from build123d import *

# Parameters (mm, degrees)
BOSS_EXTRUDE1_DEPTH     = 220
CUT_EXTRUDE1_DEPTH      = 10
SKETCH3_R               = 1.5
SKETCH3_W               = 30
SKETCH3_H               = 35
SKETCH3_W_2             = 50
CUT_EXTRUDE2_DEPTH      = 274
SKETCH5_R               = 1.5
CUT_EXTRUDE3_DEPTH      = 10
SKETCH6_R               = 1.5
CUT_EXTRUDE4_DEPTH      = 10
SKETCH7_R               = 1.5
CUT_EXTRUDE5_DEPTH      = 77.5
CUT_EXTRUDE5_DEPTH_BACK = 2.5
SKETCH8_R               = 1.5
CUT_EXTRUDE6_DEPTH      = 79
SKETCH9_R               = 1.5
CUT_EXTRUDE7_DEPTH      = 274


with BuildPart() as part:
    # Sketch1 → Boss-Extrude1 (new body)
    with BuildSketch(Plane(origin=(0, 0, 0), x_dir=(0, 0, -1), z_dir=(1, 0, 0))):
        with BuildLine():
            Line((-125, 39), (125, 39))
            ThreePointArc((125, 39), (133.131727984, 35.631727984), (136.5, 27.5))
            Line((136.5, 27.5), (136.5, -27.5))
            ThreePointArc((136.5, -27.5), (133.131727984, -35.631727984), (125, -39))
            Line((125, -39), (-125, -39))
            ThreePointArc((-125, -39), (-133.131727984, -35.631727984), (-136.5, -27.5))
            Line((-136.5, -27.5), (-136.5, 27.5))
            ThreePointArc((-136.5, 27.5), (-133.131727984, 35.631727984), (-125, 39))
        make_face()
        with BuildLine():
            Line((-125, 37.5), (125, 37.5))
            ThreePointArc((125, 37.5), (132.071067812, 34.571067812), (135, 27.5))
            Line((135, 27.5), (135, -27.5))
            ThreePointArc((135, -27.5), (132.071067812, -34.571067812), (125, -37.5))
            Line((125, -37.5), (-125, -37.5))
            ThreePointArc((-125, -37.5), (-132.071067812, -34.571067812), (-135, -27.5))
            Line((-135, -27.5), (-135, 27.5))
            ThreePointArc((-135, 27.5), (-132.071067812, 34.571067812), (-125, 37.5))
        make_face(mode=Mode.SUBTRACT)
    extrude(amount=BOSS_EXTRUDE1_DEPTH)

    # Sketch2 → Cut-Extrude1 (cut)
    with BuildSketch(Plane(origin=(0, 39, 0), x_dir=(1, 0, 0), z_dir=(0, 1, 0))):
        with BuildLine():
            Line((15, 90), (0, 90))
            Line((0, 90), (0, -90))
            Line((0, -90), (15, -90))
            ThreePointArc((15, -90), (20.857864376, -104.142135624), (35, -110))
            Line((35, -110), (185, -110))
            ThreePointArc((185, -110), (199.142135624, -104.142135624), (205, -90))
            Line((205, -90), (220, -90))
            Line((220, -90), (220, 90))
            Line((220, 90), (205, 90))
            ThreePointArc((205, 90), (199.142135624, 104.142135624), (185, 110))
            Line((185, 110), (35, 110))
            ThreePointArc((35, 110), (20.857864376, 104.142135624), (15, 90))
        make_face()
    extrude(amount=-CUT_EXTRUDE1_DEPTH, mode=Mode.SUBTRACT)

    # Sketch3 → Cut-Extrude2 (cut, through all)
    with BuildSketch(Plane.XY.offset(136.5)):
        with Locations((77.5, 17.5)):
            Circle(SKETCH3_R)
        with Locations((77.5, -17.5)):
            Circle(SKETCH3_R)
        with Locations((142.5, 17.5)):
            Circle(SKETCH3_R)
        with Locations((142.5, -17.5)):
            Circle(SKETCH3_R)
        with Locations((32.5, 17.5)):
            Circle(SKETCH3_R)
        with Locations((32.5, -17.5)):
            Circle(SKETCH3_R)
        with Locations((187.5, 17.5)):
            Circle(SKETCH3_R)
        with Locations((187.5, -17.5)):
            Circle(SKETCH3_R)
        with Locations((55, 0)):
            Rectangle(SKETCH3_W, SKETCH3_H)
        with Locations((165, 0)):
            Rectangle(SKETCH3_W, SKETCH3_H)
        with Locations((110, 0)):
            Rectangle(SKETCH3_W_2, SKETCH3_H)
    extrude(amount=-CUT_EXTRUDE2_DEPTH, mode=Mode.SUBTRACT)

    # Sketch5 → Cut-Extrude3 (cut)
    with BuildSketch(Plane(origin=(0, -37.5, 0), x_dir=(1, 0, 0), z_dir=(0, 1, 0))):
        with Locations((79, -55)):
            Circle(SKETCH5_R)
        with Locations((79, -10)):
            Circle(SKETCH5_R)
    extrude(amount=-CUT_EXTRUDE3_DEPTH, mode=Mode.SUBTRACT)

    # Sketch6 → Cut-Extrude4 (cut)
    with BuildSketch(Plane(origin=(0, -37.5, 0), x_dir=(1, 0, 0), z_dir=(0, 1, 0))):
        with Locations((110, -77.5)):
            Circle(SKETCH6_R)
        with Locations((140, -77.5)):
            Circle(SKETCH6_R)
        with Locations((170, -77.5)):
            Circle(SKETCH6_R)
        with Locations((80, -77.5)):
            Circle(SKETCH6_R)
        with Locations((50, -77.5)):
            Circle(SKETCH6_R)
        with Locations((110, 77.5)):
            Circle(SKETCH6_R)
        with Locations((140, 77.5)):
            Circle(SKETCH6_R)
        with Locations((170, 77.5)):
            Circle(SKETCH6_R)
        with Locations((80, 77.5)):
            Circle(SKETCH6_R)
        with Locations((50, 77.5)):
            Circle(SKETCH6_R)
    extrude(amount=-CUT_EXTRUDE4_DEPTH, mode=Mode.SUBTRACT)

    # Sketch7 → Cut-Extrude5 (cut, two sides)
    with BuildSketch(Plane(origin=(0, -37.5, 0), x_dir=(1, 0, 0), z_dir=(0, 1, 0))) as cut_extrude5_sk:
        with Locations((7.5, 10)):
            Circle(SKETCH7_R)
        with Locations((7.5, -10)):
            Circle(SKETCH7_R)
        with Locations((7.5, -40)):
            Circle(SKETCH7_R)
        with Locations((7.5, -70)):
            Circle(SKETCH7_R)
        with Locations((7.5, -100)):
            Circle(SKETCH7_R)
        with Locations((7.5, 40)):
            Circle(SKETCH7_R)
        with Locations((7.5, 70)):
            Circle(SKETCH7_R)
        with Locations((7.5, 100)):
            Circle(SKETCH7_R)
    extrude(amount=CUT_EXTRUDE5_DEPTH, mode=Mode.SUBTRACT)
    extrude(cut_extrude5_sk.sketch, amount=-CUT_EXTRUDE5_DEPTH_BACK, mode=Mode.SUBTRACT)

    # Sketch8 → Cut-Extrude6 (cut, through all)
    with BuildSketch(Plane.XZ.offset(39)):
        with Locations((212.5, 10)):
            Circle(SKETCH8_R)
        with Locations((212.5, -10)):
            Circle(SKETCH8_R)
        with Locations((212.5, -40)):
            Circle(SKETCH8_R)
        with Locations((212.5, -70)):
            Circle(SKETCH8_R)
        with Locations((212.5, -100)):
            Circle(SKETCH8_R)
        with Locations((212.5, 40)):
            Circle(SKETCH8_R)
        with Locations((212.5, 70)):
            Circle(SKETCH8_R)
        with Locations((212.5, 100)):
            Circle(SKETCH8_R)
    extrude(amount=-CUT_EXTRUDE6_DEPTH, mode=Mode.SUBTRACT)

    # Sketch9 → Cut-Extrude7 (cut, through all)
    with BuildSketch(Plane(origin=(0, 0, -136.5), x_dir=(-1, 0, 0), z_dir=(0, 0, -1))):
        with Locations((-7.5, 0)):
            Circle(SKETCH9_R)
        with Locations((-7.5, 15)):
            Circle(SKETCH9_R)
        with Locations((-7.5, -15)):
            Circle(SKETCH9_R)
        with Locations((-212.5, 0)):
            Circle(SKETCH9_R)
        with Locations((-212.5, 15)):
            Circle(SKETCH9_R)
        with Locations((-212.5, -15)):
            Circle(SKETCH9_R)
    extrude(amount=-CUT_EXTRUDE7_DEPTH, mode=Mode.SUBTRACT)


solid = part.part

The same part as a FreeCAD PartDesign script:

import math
import FreeCAD as App
import Part
import Sketcher
from FreeCAD import Vector

doc = App.newDocument("Part")
body = doc.addObject("PartDesign::Body", "Body")

# Sketch on YZ plane
sketch1 = body.newObject("Sketcher::SketchObject", "Sketch")
sketch1.AttachmentSupport = (doc.getObject("YZ_Plane"), [""])
sketch1.MapMode = "FlatFace"
sketch1.addGeometry([
    Part.LineSegment(Vector(39, -125, 0), Vector(39, 125, 0)),  # 0
    Part.ArcOfCircle(Part.Circle(Vector(27.5, 125, 0), Vector(0, 0, 1), 11.5), math.radians(0), math.radians(90)),  # 1
    Part.LineSegment(Vector(27.5, 136.5, 0), Vector(-27.5, 136.5, 0)),  # 2
    Part.ArcOfCircle(Part.Circle(Vector(-27.5, 125, 0), Vector(0, 0, 1), 11.5), math.radians(90), math.radians(180)),  # 3
    Part.LineSegment(Vector(-39, 125, 0), Vector(-39, -125, 0)),  # 4
    Part.ArcOfCircle(Part.Circle(Vector(-27.5, -125, 0), Vector(0, 0, 1), 11.5), math.radians(180), math.radians(270)),  # 5
    Part.LineSegment(Vector(-27.5, -136.5, 0), Vector(27.5, -136.5, 0)),  # 6
    Part.ArcOfCircle(Part.Circle(Vector(27.5, -125, 0), Vector(0, 0, 1), 11.5), math.radians(-90), math.radians(0)),  # 7
    Part.LineSegment(Vector(37.5, 125, 0), Vector(37.5, -125, 0)),  # 8
    Part.ArcOfCircle(Part.Circle(Vector(27.5, -125, 0), Vector(0, 0, 1), 10), math.radians(-90), math.radians(0)),  # 9
    Part.LineSegment(Vector(27.5, -135, 0), Vector(-27.5, -135, 0)),  # 10
    Part.ArcOfCircle(Part.Circle(Vector(-27.5, -125, 0), Vector(0, 0, 1), 10), math.radians(180), math.radians(270)),  # 11
    Part.LineSegment(Vector(-37.5, -125, 0), Vector(-37.5, 125, 0)),  # 12
    Part.ArcOfCircle(Part.Circle(Vector(-27.5, 125, 0), Vector(0, 0, 1), 10), math.radians(90), math.radians(180)),  # 13
    Part.LineSegment(Vector(-27.5, 135, 0), Vector(27.5, 135, 0)),  # 14
    Part.ArcOfCircle(Part.Circle(Vector(27.5, 125, 0), Vector(0, 0, 1), 10), math.radians(0), math.radians(90)),  # 15
], False)
sketch1.addConstraint([
    Sketcher.Constraint("Tangent", 0, 2, 1, 1),
    Sketcher.Constraint("Tangent", 1, 2, 2, 1),
    Sketcher.Constraint("Tangent", 2, 2, 3, 1),
    Sketcher.Constraint("Tangent", 3, 2, 4, 1),
    Sketcher.Constraint("Tangent", 4, 2, 5, 1),
    Sketcher.Constraint("Tangent", 5, 2, 6, 1),
    Sketcher.Constraint("Tangent", 6, 2, 7, 1),
    Sketcher.Constraint("Tangent", 7, 2, 0, 1),
    Sketcher.Constraint("Tangent", 8, 2, 9, 2),
    Sketcher.Constraint("Tangent", 9, 1, 10, 1),
    Sketcher.Constraint("Tangent", 10, 2, 11, 2),
    Sketcher.Constraint("Tangent", 11, 1, 12, 1),
    Sketcher.Constraint("Tangent", 12, 2, 13, 2),
    Sketcher.Constraint("Tangent", 13, 1, 14, 1),
    Sketcher.Constraint("Tangent", 14, 2, 15, 2),
    Sketcher.Constraint("Tangent", 15, 1, 8, 1),
    Sketcher.Constraint("Vertical", 0),
    Sketcher.Constraint("Horizontal", 2),
    Sketcher.Constraint("Vertical", 4),
    Sketcher.Constraint("Horizontal", 6),
    Sketcher.Constraint("Vertical", 8),
    Sketcher.Constraint("Horizontal", 10),
    Sketcher.Constraint("Vertical", 12),
    Sketcher.Constraint("Horizontal", 14),
    Sketcher.Constraint("Coincident", 9, 3, 7, 3),
    Sketcher.Constraint("Coincident", 11, 3, 5, 3),
    Sketcher.Constraint("Coincident", 13, 3, 3, 3),
    Sketcher.Constraint("Equal", 1, 3),
    Sketcher.Constraint("Equal", 3, 5),
    Sketcher.Constraint("Equal", 5, 7),
    Sketcher.Constraint("Equal", 13, 15),
    Sketcher.Constraint("Symmetric", 1, 3, 5, 3, -1, 1),
    Sketcher.Constraint("Radius", 9, 10.0),
    Sketcher.Constraint("Radius", 1, 11.5),
    Sketcher.Constraint("DistanceX", 2, 2, 2, 1, 55.0),
    Sketcher.Constraint("DistanceY", 0, 1, 0, 2, 250.0),
])
pad1 = body.newObject("PartDesign::Pad", "Pad")
pad1.Profile = sketch1
pad1.Length = 220

# Sketch on XZ plane
sketch2 = body.newObject("Sketcher::SketchObject", "Sketch001")
sketch2.AttachmentSupport = (doc.getObject("XZ_Plane"), [""])
sketch2.MapMode = "FlatFace"
sketch2.AttachmentOffset = App.Placement(Vector(0, 0, -39), App.Rotation())
sketch2.addGeometry([
    Part.LineSegment(Vector(15, -90, 0), Vector(0, -90, 0)),  # 0
    Part.LineSegment(Vector(0, -90, 0), Vector(0, 90, 0)),  # 1
    Part.LineSegment(Vector(0, 90, 0), Vector(15, 90, 0)),  # 2
    Part.ArcOfCircle(Part.Circle(Vector(35, 90, 0), Vector(0, 0, 1), 20), math.radians(90), math.radians(180)),  # 3
    Part.LineSegment(Vector(35, 110, 0), Vector(185, 110, 0)),  # 4
    Part.ArcOfCircle(Part.Circle(Vector(185, 90, 0), Vector(0, 0, 1), 20), math.radians(0), math.radians(90)),  # 5
    Part.LineSegment(Vector(205, 90, 0), Vector(220, 90, 0)),  # 6
    Part.LineSegment(Vector(220, 90, 0), Vector(220, -90, 0)),  # 7
    Part.LineSegment(Vector(220, -90, 0), Vector(205, -90, 0)),  # 8
    Part.ArcOfCircle(Part.Circle(Vector(185, -90, 0), Vector(0, 0, 1), 20), math.radians(-90), math.radians(0)),  # 9
    Part.LineSegment(Vector(185, -110, 0), Vector(35, -110, 0)),  # 10
    Part.ArcOfCircle(Part.Circle(Vector(35, -90, 0), Vector(0, 0, 1), 20), math.radians(180), math.radians(270)),  # 11
], False)
sketch2.addConstraint([
    Sketcher.Constraint("Coincident", 0, 2, 1, 1),
    Sketcher.Constraint("Coincident", 1, 2, 2, 1),
    Sketcher.Constraint("Coincident", 2, 2, 3, 2),
    Sketcher.Constraint("Tangent", 3, 1, 4, 1),
    Sketcher.Constraint("Tangent", 4, 2, 5, 2),
    Sketcher.Constraint("Coincident", 5, 1, 6, 1),
    Sketcher.Constraint("Coincident", 6, 2, 7, 1),
    Sketcher.Constraint("Coincident", 7, 2, 8, 1),
    Sketcher.Constraint("Coincident", 8, 2, 9, 2),
    Sketcher.Constraint("Tangent", 9, 1, 10, 1),
    Sketcher.Constraint("Tangent", 10, 2, 11, 2),
    Sketcher.Constraint("Coincident", 11, 1, 0, 1),
    Sketcher.Constraint("Horizontal", 0),
    Sketcher.Constraint("Vertical", 1),
    Sketcher.Constraint("Horizontal", 2),
    Sketcher.Constraint("Horizontal", 4),
    Sketcher.Constraint("Horizontal", 6),
    Sketcher.Constraint("Vertical", 7),
    Sketcher.Constraint("Horizontal", 8),
    Sketcher.Constraint("Horizontal", 10),
    Sketcher.Constraint("Equal", 3, 5),
    Sketcher.Constraint("Equal", 5, 9),
    Sketcher.Constraint("Equal", 9, 11),
    Sketcher.Constraint("Symmetric", 0, 2, 1, 2, -1, 1),
    Sketcher.Constraint("Symmetric", 5, 3, 9, 3, -1),
    Sketcher.Constraint("Horizontal", 11, 3, 0, 2),
    Sketcher.Constraint("Horizontal", 2, 2, 5, 1),
    Sketcher.Constraint("Horizontal", 0, 2, 7, 2),
    Sketcher.Constraint("Vertical", 3, 3, 11, 3),
    Sketcher.Constraint("Equal", 2, 6),
    Sketcher.Constraint("Radius", 3, 20.0),
    Sketcher.Constraint("DistanceX", 0, 2, 0, 1, 15.0),
    Sketcher.Constraint("DistanceX", 4, 1, 4, 2, 150.0),
    Sketcher.Constraint("DistanceY", 1, 1, 1, 2, 180.0),
])
pocket1 = body.newObject("PartDesign::Pocket", "Pocket")
pocket1.Profile = sketch2
pocket1.Length = 10
pocket1.Reversed = True

# Sketch on XY plane
sketch3 = body.newObject("Sketcher::SketchObject", "Sketch002")
sketch3.AttachmentSupport = (doc.getObject("XY_Plane"), [""])
sketch3.MapMode = "FlatFace"
sketch3.AttachmentOffset = App.Placement(Vector(0, 0, 136.5), App.Rotation())
sketch3.addGeometry([
    Part.Circle(Vector(77.5, 17.5, 0), Vector(0, 0, 1), 1.5),  # 0
    Part.Circle(Vector(77.5, -17.5, 0), Vector(0, 0, 1), 1.5),  # 1
    Part.Circle(Vector(142.5, 17.5, 0), Vector(0, 0, 1), 1.5),  # 2
    Part.Circle(Vector(142.5, -17.5, 0), Vector(0, 0, 1), 1.5),  # 3
    Part.Circle(Vector(32.5, 17.5, 0), Vector(0, 0, 1), 1.5),  # 4
    Part.Circle(Vector(32.5, -17.5, 0), Vector(0, 0, 1), 1.5),  # 5
    Part.Circle(Vector(187.5, 17.5, 0), Vector(0, 0, 1), 1.5),  # 6
    Part.Circle(Vector(187.5, -17.5, 0), Vector(0, 0, 1), 1.5),  # 7
    Part.LineSegment(Vector(40, 17.5, 0), Vector(40, -17.5, 0)),  # 8
    Part.LineSegment(Vector(40, -17.5, 0), Vector(70, -17.5, 0)),  # 9
    Part.LineSegment(Vector(70, -17.5, 0), Vector(70, 17.5, 0)),  # 10
    Part.LineSegment(Vector(70, 17.5, 0), Vector(40, 17.5, 0)),  # 11
    Part.LineSegment(Vector(150, 17.5, 0), Vector(150, -17.5, 0)),  # 12
    Part.LineSegment(Vector(150, -17.5, 0), Vector(180, -17.5, 0)),  # 13
    Part.LineSegment(Vector(180, -17.5, 0), Vector(180, 17.5, 0)),  # 14
    Part.LineSegment(Vector(180, 17.5, 0), Vector(150, 17.5, 0)),  # 15
    Part.LineSegment(Vector(85, 17.5, 0), Vector(85, -17.5, 0)),  # 16
    Part.LineSegment(Vector(85, -17.5, 0), Vector(135, -17.5, 0)),  # 17
    Part.LineSegment(Vector(135, -17.5, 0), Vector(135, 17.5, 0)),  # 18
    Part.LineSegment(Vector(135, 17.5, 0), Vector(85, 17.5, 0)),  # 19
], False)
sketch3.addConstraint([
    Sketcher.Constraint("Coincident", 8, 2, 9, 1),
    Sketcher.Constraint("Coincident", 9, 2, 10, 1),
    Sketcher.Constraint("Coincident", 10, 2, 11, 1),
    Sketcher.Constraint("Coincident", 11, 2, 8, 1),
    Sketcher.Constraint("Coincident", 12, 2, 13, 1),
    Sketcher.Constraint("Coincident", 13, 2, 14, 1),
    Sketcher.Constraint("Coincident", 14, 2, 15, 1),
    Sketcher.Constraint("Coincident", 15, 2, 12, 1),
    Sketcher.Constraint("Coincident", 16, 2, 17, 1),
    Sketcher.Constraint("Coincident", 17, 2, 18, 1),
    Sketcher.Constraint("Coincident", 18, 2, 19, 1),
    Sketcher.Constraint("Coincident", 19, 2, 16, 1),
    Sketcher.Constraint("Vertical", 8),
    Sketcher.Constraint("Horizontal", 9),
    Sketcher.Constraint("Vertical", 10),
    Sketcher.Constraint("Horizontal", 11),
    Sketcher.Constraint("Vertical", 12),
    Sketcher.Constraint("Horizontal", 13),
    Sketcher.Constraint("Vertical", 14),
    Sketcher.Constraint("Horizontal", 15),
    Sketcher.Constraint("Vertical", 16),
    Sketcher.Constraint("Horizontal", 17),
    Sketcher.Constraint("Vertical", 18),
    Sketcher.Constraint("Horizontal", 19),
    Sketcher.Constraint("Equal", 0, 1),
    Sketcher.Constraint("Equal", 1, 2),
    Sketcher.Constraint("Equal", 2, 3),
    Sketcher.Constraint("Equal", 3, 4),
    Sketcher.Constraint("Equal", 4, 5),
    Sketcher.Constraint("Equal", 5, 6),
    Sketcher.Constraint("Equal", 6, 7),
    Sketcher.Constraint("Symmetric", 0, 3, 1, 3, -1),
    Sketcher.Constraint("Symmetric", 2, 3, 3, 3, -1),
    Sketcher.Constraint("Symmetric", 4, 3, 5, 3, -1),
    Sketcher.Constraint("Symmetric", 6, 3, 7, 3, -1),
    Sketcher.Constraint("Horizontal", 0, 3, 2, 3),
    Sketcher.Constraint("Horizontal", 2, 3, 4, 3),
    Sketcher.Constraint("Horizontal", 4, 3, 6, 3),
    Sketcher.Constraint("Horizontal", 7, 3, 8, 2),
    Sketcher.Constraint("Horizontal", 6, 3, 10, 2),
    Sketcher.Constraint("Horizontal", 9, 2, 12, 2),
    Sketcher.Constraint("Horizontal", 11, 2, 14, 2),
    Sketcher.Constraint("Horizontal", 13, 2, 16, 2),
    Sketcher.Constraint("Horizontal", 15, 2, 18, 2),
    Sketcher.Constraint("Equal", 11, 13),
    Sketcher.Constraint("Diameter", 0, 3.0),
    Sketcher.Constraint("DistanceX", 9, 1, 9, 2, 30.0),
    Sketcher.Constraint("DistanceX", 17, 1, 17, 2, 50.0),
    Sketcher.Constraint("DistanceY", 8, 2, 8, 1, 35.0),
    Sketcher.Constraint("DistanceX", -1, 1, 8, 2, 40.0),
    Sketcher.Constraint("DistanceX", -1, 1, 12, 2, 150.0),
    Sketcher.Constraint("DistanceX", -1, 1, 16, 2, 85.0),
    Sketcher.Constraint("DistanceX", 0, 3, 2, 3, 65.0),
    Sketcher.Constraint("DistanceX", 4, 3, 0, 3, 45.0),
    Sketcher.Constraint("DistanceX", 2, 3, 6, 3, 45.0),
    Sketcher.Constraint("DistanceX", -1, 1, 0, 3, 77.5),
])
pocket2 = body.newObject("PartDesign::Pocket", "Pocket001")
pocket2.Profile = sketch3
pocket2.Type = "ThroughAll"

# Sketch on XZ plane
sketch4 = body.newObject("Sketcher::SketchObject", "Sketch003")
sketch4.AttachmentSupport = (doc.getObject("XZ_Plane"), [""])
sketch4.MapMode = "FlatFace"
sketch4.AttachmentOffset = App.Placement(Vector(0, 0, 37.5), App.Rotation())
sketch4.addGeometry([
    Part.Circle(Vector(79, 55, 0), Vector(0, 0, 1), 1.5),
    Part.Circle(Vector(79, 10, 0), Vector(0, 0, 1), 1.5),
], False)
sketch4.addConstraint([
    Sketcher.Constraint("Equal", 0, 1),
    Sketcher.Constraint("Vertical", 0, 3, 1, 3),
    Sketcher.Constraint("Diameter", 0, 3.0),
    Sketcher.Constraint("DistanceX", -1, 1, 0, 3, 79.0),
    Sketcher.Constraint("DistanceY", -1, 1, 0, 3, 55.0),
    Sketcher.Constraint("DistanceY", -1, 1, 1, 3, 10.0),
])
pocket3 = body.newObject("PartDesign::Pocket", "Pocket002")
pocket3.Profile = sketch4
pocket3.Length = 10
pocket3.Reversed = True

# Sketch on XZ plane
sketch5 = body.newObject("Sketcher::SketchObject", "Sketch004")
sketch5.AttachmentSupport = (doc.getObject("XZ_Plane"), [""])
sketch5.MapMode = "FlatFace"
sketch5.AttachmentOffset = App.Placement(Vector(0, 0, 37.5), App.Rotation())
sketch5.addGeometry([
    Part.Circle(Vector(110, 77.5, 0), Vector(0, 0, 1), 1.5),  # 0
    Part.Circle(Vector(140, 77.5, 0), Vector(0, 0, 1), 1.5),  # 1
    Part.Circle(Vector(170, 77.5, 0), Vector(0, 0, 1), 1.5),  # 2
    Part.Circle(Vector(80, 77.5, 0), Vector(0, 0, 1), 1.5),  # 3
    Part.Circle(Vector(50, 77.5, 0), Vector(0, 0, 1), 1.5),  # 4
    Part.Circle(Vector(110, -77.5, 0), Vector(0, 0, 1), 1.5),  # 5
    Part.Circle(Vector(140, -77.5, 0), Vector(0, 0, 1), 1.5),  # 6
    Part.Circle(Vector(170, -77.5, 0), Vector(0, 0, 1), 1.5),  # 7
    Part.Circle(Vector(80, -77.5, 0), Vector(0, 0, 1), 1.5),  # 8
    Part.Circle(Vector(50, -77.5, 0), Vector(0, 0, 1), 1.5),  # 9
], False)
sketch5.addConstraint([
    Sketcher.Constraint("Equal", 0, 1),
    Sketcher.Constraint("Equal", 1, 2),
    Sketcher.Constraint("Equal", 2, 3),
    Sketcher.Constraint("Equal", 3, 4),
    Sketcher.Constraint("Equal", 4, 5),
    Sketcher.Constraint("Equal", 5, 6),
    Sketcher.Constraint("Equal", 6, 7),
    Sketcher.Constraint("Equal", 7, 8),
    Sketcher.Constraint("Equal", 8, 9),
    Sketcher.Constraint("Symmetric", 0, 3, 5, 3, -1),
    Sketcher.Constraint("Symmetric", 1, 3, 6, 3, -1),
    Sketcher.Constraint("Symmetric", 2, 3, 7, 3, -1),
    Sketcher.Constraint("Symmetric", 3, 3, 8, 3, -1),
    Sketcher.Constraint("Symmetric", 4, 3, 9, 3, -1),
    Sketcher.Constraint("Horizontal", 0, 3, 1, 3),
    Sketcher.Constraint("Horizontal", 1, 3, 2, 3),
    Sketcher.Constraint("Horizontal", 2, 3, 3, 3),
    Sketcher.Constraint("Horizontal", 3, 3, 4, 3),
    Sketcher.Constraint("Diameter", 0, 3.0),
    Sketcher.Constraint("DistanceX", -1, 1, 0, 3, 110.0),
    Sketcher.Constraint("DistanceX", -1, 1, 1, 3, 140.0),
    Sketcher.Constraint("DistanceX", -1, 1, 2, 3, 170.0),
    Sketcher.Constraint("DistanceX", -1, 1, 3, 3, 80.0),
    Sketcher.Constraint("DistanceX", -1, 1, 4, 3, 50.0),
    Sketcher.Constraint("DistanceY", 5, 3, 0, 3, 155.0),
])
pocket4 = body.newObject("PartDesign::Pocket", "Pocket003")
pocket4.Profile = sketch5
pocket4.Length = 10
pocket4.Reversed = True

# Sketch on XZ plane
sketch6 = body.newObject("Sketcher::SketchObject", "Sketch005")
sketch6.AttachmentSupport = (doc.getObject("XZ_Plane"), [""])
sketch6.MapMode = "FlatFace"
sketch6.AttachmentOffset = App.Placement(Vector(0, 0, 37.5), App.Rotation())
sketch6.addGeometry([
    Part.Circle(Vector(7.5, -10, 0), Vector(0, 0, 1), 1.5),  # 0
    Part.Circle(Vector(7.5, 10, 0), Vector(0, 0, 1), 1.5),  # 1
    Part.Circle(Vector(7.5, 40, 0), Vector(0, 0, 1), 1.5),  # 2
    Part.Circle(Vector(7.5, 70, 0), Vector(0, 0, 1), 1.5),  # 3
    Part.Circle(Vector(7.5, 100, 0), Vector(0, 0, 1), 1.5),  # 4
    Part.Circle(Vector(7.5, -40, 0), Vector(0, 0, 1), 1.5),  # 5
    Part.Circle(Vector(7.5, -70, 0), Vector(0, 0, 1), 1.5),  # 6
    Part.Circle(Vector(7.5, -100, 0), Vector(0, 0, 1), 1.5),  # 7
], False)
sketch6.addConstraint([
    Sketcher.Constraint("Equal", 0, 1),
    Sketcher.Constraint("Equal", 1, 2),
    Sketcher.Constraint("Equal", 2, 3),
    Sketcher.Constraint("Equal", 3, 4),
    Sketcher.Constraint("Equal", 4, 5),
    Sketcher.Constraint("Equal", 5, 6),
    Sketcher.Constraint("Equal", 6, 7),
    Sketcher.Constraint("Symmetric", 0, 3, 1, 3, -1),
    Sketcher.Constraint("Symmetric", 2, 3, 5, 3, -1),
    Sketcher.Constraint("Symmetric", 3, 3, 6, 3, -1),
    Sketcher.Constraint("Symmetric", 4, 3, 7, 3, -1),
    Sketcher.Constraint("Vertical", 1, 3, 2, 3),
    Sketcher.Constraint("Vertical", 2, 3, 3, 3),
    Sketcher.Constraint("Vertical", 3, 3, 4, 3),
    Sketcher.Constraint("Diameter", 0, 3.0),
    Sketcher.Constraint("DistanceY", 0, 3, -1, 1, 10.0),
    Sketcher.Constraint("DistanceY", -1, 1, 2, 3, 40.0),
    Sketcher.Constraint("DistanceY", -1, 1, 3, 3, 70.0),
    Sketcher.Constraint("DistanceY", -1, 1, 4, 3, 100.0),
    Sketcher.Constraint("DistanceX", -1, 1, 0, 3, 7.5),
])
pocket5 = body.newObject("PartDesign::Pocket", "Pocket004")
pocket5.Profile = sketch6
pocket5.Type = "ThroughAll"
pocket5.Midplane = True

# Sketch on XZ plane
sketch7 = body.newObject("Sketcher::SketchObject", "Sketch006")
sketch7.AttachmentSupport = (doc.getObject("XZ_Plane"), [""])
sketch7.MapMode = "FlatFace"
sketch7.AttachmentOffset = App.Placement(Vector(0, 0, 39), App.Rotation())
sketch7.addGeometry([
    Part.Circle(Vector(212.5, 10, 0), Vector(0, 0, 1), 1.5),  # 0
    Part.Circle(Vector(212.5, -10, 0), Vector(0, 0, 1), 1.5),  # 1
    Part.Circle(Vector(212.5, -40, 0), Vector(0, 0, 1), 1.5),  # 2
    Part.Circle(Vector(212.5, -70, 0), Vector(0, 0, 1), 1.5),  # 3
    Part.Circle(Vector(212.5, -100, 0), Vector(0, 0, 1), 1.5),  # 4
    Part.Circle(Vector(212.5, 40, 0), Vector(0, 0, 1), 1.5),  # 5
    Part.Circle(Vector(212.5, 70, 0), Vector(0, 0, 1), 1.5),  # 6
    Part.Circle(Vector(212.5, 100, 0), Vector(0, 0, 1), 1.5),  # 7
], False)
sketch7.addConstraint([
    Sketcher.Constraint("Equal", 0, 1),
    Sketcher.Constraint("Equal", 1, 2),
    Sketcher.Constraint("Equal", 2, 3),
    Sketcher.Constraint("Equal", 3, 4),
    Sketcher.Constraint("Equal", 4, 5),
    Sketcher.Constraint("Equal", 5, 6),
    Sketcher.Constraint("Equal", 6, 7),
    Sketcher.Constraint("Symmetric", 0, 3, 1, 3, -1),
    Sketcher.Constraint("Symmetric", 2, 3, 5, 3, -1),
    Sketcher.Constraint("Symmetric", 3, 3, 6, 3, -1),
    Sketcher.Constraint("Symmetric", 4, 3, 7, 3, -1),
    Sketcher.Constraint("Vertical", 1, 3, 2, 3),
    Sketcher.Constraint("Vertical", 2, 3, 3, 3),
    Sketcher.Constraint("Vertical", 3, 3, 4, 3),
    Sketcher.Constraint("Diameter", 0, 3.0),
    Sketcher.Constraint("DistanceY", -1, 1, 0, 3, 10.0),
    Sketcher.Constraint("DistanceY", 2, 3, -1, 1, 40.0),
    Sketcher.Constraint("DistanceY", 3, 3, -1, 1, 70.0),
    Sketcher.Constraint("DistanceY", 4, 3, -1, 1, 100.0),
    Sketcher.Constraint("DistanceX", -1, 1, 0, 3, 212.5),
])
pocket6 = body.newObject("PartDesign::Pocket", "Pocket005")
pocket6.Profile = sketch7
pocket6.Type = "ThroughAll"

# Sketch on XY plane
sketch8 = body.newObject("Sketcher::SketchObject", "Sketch007")
sketch8.AttachmentSupport = (doc.getObject("XY_Plane"), [""])
sketch8.MapMode = "FlatFace"
sketch8.AttachmentOffset = App.Placement(Vector(0, 0, -136.5), App.Rotation())
sketch8.addGeometry([
    Part.Circle(Vector(7.5, 0, 0), Vector(0, 0, 1), 1.5),  # 0
    Part.Circle(Vector(7.5, 15, 0), Vector(0, 0, 1), 1.5),  # 1
    Part.Circle(Vector(7.5, -15, 0), Vector(0, 0, 1), 1.5),  # 2
    Part.Circle(Vector(212.5, 0, 0), Vector(0, 0, 1), 1.5),  # 3
    Part.Circle(Vector(212.5, 15, 0), Vector(0, 0, 1), 1.5),  # 4
    Part.Circle(Vector(212.5, -15, 0), Vector(0, 0, 1), 1.5),  # 5
], False)
sketch8.addConstraint([
    Sketcher.Constraint("Equal", 0, 1),
    Sketcher.Constraint("Equal", 1, 2),
    Sketcher.Constraint("Equal", 2, 3),
    Sketcher.Constraint("Equal", 3, 4),
    Sketcher.Constraint("Equal", 4, 5),
    Sketcher.Constraint("Symmetric", 1, 3, 2, 3, -1),
    Sketcher.Constraint("Symmetric", 4, 3, 5, 3, -1),
    Sketcher.Constraint("PointOnObject", 0, 3, -1),
    Sketcher.Constraint("PointOnObject", 3, 3, -1),
    Sketcher.Constraint("Horizontal", 1, 3, 4, 3),
    Sketcher.Constraint("Vertical", 0, 3, 1, 3),
    Sketcher.Constraint("Vertical", 3, 3, 4, 3),
    Sketcher.Constraint("Diameter", 0, 3.0),
    Sketcher.Constraint("DistanceY", -1, 1, 1, 3, 15.0),
    Sketcher.Constraint("DistanceX", 0, 3, 3, 3, 205.0),
    Sketcher.Constraint("DistanceX", -1, 1, 0, 3, 7.5),
])
pocket7 = body.newObject("PartDesign::Pocket", "Pocket006")
pocket7.Profile = sketch8
pocket7.Type = "ThroughAll"
pocket7.Reversed = True

doc.recompute()
